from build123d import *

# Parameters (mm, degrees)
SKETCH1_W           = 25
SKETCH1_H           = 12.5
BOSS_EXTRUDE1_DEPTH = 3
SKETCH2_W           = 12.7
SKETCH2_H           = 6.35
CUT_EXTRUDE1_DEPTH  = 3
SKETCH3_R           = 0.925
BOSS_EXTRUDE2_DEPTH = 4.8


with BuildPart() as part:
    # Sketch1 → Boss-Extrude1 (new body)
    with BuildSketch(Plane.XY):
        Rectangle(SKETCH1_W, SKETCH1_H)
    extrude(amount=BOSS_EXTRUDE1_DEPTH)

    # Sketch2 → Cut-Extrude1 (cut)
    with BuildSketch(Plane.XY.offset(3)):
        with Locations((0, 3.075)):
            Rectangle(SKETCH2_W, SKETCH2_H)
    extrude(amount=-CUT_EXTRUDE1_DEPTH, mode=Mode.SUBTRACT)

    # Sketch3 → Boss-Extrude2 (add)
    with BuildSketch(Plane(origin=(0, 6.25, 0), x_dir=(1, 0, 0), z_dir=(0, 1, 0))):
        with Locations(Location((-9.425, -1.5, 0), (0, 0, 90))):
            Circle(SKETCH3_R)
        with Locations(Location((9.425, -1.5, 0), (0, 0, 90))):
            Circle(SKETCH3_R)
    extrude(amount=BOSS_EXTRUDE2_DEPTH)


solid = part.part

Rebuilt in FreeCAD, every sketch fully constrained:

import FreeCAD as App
import Part
import Sketcher

V = App.Vector

doc = App.newDocument("Part")
body = doc.addObject("PartDesign::Body", "Body")

# Sketch on XY plane
sketch1 = body.newObject("Sketcher::SketchObject", "Sketch")
sketch1.AttachmentSupport = (doc.getObject("XY_Plane"), [""])
sketch1.MapMode = "FlatFace"
sketch1.addGeometry([
    Part.LineSegment(V(-12.5, 6.25, 0), V(-12.5, -6.25, 0)),
    Part.LineSegment(V(-12.5, -6.25, 0), V(12.5, -6.25, 0)),
    Part.LineSegment(V(12.5, -6.25, 0), V(12.5, 6.25, 0)),
    Part.LineSegment(V(12.5, 6.25, 0), V(-12.5, 6.25, 0)),
], False)
sketch1.addConstraint([
    Sketcher.Constraint("Coincident", 0, 2, 1, 1),
    Sketcher.Constraint("Coincident", 1, 2, 2, 1),
    Sketcher.Constraint("Coincident", 2, 2, 3, 1),
    Sketcher.Constraint("Coincident", 3, 2, 0, 1),
    Sketcher.Constraint("Vertical", 0),
    Sketcher.Constraint("Horizontal", 1),
    Sketcher.Constraint("Vertical", 2),
    Sketcher.Constraint("Horizontal", 3),
    Sketcher.Constraint("Symmetric", 0, 2, 2, 2, -1, 1),
    Sketcher.Constraint("DistanceX", 1, 1, 1, 2, 25.0),
    Sketcher.Constraint("DistanceY", 0, 2, 0, 1, 12.5),
])
pad1 = body.newObject("PartDesign::Pad", "Pad")
pad1.Profile = sketch1
pad1.Length = 3

# Sketch on XY plane
sketch2 = body.newObject("Sketcher::SketchObject", "Sketch001")
sketch2.AttachmentSupport = (doc.getObject("XY_Plane"), [""])
sketch2.MapMode = "FlatFace"
sketch2.AttachmentOffset = App.Placement(V(0, 0, 3), App.Rotation())
sketch2.addGeometry([
    Part.LineSegment(V(-6.35, 6.25, 0), V(-6.35, -0.1, 0)),
    Part.LineSegment(V(-6.35, -0.1, 0), V(6.35, -0.1, 0)),
    Part.LineSegment(V(6.35, -0.1, 0), V(6.35, 6.25, 0)),
    Part.LineSegment(V(6.35, 6.25, 0), V(-6.35, 6.25, 0)),
], False)
sketch2.addConstraint([
    Sketcher.Constraint("Coincident", 0, 2, 1, 1),
    Sketcher.Constraint("Coincident", 1, 2, 2, 1),
    Sketcher.Constraint("Coincident", 2, 2, 3, 1),
    Sketcher.Constraint("Coincident", 3, 2, 0, 1),
    Sketcher.Constraint("Vertical", 0),
    Sketcher.Constraint("Horizontal", 1),
    Sketcher.Constraint("Vertical", 2),
    Sketcher.Constraint("Horizontal", 3),
    Sketcher.Constraint("DistanceX", 1, 1, 1, 2, 12.7),
    Sketcher.Constraint("DistanceY", 0, 2, 0, 1, 6.35),
    Sketcher.Constraint("DistanceY", 0, 2, -1, 1, 0.1),
    Sketcher.Constraint("DistanceX", 0, 2, -1, 1, 6.35),
])
pocket1 = body.newObject("PartDesign::Pocket", "Pocket")
pocket1.Profile = sketch2
pocket1.Length = 3

# Sketch on XZ plane
sketch3 = body.newObject("Sketcher::SketchObject", "Sketch002")
sketch3.AttachmentSupport = (doc.getObject("XZ_Plane"), [""])
sketch3.MapMode = "FlatFace"
sketch3.AttachmentOffset = App.Placement(V(0, 0, -6.25), App.Rotation())
sketch3.addGeometry([
    Part.Circle(V(-9.425, 1.5, 0), V(0, 0, 1), 0.925),
    Part.Circle(V(9.425, 1.5, 0), V(0, 0, 1), 0.925),
], False)
sketch3.addConstraint([
    Sketcher.Constraint("Equal", 0, 1),
    Sketcher.Constraint("Symmetric", 0, 3, 1, 3, -2),
    Sketcher.Constraint("Diameter", 0, 1.85),
    Sketcher.Constraint("DistanceY", -1, 1, 0, 3, 1.5),
    Sketcher.Constraint("DistanceX", 0, 3, 1, 3, 18.85),
])
pad2 = body.newObject("PartDesign::Pad", "Pad001")
pad2.Profile = sketch3
pad2.Length = 4.8
pad2.Reversed = True

doc.recompute()
